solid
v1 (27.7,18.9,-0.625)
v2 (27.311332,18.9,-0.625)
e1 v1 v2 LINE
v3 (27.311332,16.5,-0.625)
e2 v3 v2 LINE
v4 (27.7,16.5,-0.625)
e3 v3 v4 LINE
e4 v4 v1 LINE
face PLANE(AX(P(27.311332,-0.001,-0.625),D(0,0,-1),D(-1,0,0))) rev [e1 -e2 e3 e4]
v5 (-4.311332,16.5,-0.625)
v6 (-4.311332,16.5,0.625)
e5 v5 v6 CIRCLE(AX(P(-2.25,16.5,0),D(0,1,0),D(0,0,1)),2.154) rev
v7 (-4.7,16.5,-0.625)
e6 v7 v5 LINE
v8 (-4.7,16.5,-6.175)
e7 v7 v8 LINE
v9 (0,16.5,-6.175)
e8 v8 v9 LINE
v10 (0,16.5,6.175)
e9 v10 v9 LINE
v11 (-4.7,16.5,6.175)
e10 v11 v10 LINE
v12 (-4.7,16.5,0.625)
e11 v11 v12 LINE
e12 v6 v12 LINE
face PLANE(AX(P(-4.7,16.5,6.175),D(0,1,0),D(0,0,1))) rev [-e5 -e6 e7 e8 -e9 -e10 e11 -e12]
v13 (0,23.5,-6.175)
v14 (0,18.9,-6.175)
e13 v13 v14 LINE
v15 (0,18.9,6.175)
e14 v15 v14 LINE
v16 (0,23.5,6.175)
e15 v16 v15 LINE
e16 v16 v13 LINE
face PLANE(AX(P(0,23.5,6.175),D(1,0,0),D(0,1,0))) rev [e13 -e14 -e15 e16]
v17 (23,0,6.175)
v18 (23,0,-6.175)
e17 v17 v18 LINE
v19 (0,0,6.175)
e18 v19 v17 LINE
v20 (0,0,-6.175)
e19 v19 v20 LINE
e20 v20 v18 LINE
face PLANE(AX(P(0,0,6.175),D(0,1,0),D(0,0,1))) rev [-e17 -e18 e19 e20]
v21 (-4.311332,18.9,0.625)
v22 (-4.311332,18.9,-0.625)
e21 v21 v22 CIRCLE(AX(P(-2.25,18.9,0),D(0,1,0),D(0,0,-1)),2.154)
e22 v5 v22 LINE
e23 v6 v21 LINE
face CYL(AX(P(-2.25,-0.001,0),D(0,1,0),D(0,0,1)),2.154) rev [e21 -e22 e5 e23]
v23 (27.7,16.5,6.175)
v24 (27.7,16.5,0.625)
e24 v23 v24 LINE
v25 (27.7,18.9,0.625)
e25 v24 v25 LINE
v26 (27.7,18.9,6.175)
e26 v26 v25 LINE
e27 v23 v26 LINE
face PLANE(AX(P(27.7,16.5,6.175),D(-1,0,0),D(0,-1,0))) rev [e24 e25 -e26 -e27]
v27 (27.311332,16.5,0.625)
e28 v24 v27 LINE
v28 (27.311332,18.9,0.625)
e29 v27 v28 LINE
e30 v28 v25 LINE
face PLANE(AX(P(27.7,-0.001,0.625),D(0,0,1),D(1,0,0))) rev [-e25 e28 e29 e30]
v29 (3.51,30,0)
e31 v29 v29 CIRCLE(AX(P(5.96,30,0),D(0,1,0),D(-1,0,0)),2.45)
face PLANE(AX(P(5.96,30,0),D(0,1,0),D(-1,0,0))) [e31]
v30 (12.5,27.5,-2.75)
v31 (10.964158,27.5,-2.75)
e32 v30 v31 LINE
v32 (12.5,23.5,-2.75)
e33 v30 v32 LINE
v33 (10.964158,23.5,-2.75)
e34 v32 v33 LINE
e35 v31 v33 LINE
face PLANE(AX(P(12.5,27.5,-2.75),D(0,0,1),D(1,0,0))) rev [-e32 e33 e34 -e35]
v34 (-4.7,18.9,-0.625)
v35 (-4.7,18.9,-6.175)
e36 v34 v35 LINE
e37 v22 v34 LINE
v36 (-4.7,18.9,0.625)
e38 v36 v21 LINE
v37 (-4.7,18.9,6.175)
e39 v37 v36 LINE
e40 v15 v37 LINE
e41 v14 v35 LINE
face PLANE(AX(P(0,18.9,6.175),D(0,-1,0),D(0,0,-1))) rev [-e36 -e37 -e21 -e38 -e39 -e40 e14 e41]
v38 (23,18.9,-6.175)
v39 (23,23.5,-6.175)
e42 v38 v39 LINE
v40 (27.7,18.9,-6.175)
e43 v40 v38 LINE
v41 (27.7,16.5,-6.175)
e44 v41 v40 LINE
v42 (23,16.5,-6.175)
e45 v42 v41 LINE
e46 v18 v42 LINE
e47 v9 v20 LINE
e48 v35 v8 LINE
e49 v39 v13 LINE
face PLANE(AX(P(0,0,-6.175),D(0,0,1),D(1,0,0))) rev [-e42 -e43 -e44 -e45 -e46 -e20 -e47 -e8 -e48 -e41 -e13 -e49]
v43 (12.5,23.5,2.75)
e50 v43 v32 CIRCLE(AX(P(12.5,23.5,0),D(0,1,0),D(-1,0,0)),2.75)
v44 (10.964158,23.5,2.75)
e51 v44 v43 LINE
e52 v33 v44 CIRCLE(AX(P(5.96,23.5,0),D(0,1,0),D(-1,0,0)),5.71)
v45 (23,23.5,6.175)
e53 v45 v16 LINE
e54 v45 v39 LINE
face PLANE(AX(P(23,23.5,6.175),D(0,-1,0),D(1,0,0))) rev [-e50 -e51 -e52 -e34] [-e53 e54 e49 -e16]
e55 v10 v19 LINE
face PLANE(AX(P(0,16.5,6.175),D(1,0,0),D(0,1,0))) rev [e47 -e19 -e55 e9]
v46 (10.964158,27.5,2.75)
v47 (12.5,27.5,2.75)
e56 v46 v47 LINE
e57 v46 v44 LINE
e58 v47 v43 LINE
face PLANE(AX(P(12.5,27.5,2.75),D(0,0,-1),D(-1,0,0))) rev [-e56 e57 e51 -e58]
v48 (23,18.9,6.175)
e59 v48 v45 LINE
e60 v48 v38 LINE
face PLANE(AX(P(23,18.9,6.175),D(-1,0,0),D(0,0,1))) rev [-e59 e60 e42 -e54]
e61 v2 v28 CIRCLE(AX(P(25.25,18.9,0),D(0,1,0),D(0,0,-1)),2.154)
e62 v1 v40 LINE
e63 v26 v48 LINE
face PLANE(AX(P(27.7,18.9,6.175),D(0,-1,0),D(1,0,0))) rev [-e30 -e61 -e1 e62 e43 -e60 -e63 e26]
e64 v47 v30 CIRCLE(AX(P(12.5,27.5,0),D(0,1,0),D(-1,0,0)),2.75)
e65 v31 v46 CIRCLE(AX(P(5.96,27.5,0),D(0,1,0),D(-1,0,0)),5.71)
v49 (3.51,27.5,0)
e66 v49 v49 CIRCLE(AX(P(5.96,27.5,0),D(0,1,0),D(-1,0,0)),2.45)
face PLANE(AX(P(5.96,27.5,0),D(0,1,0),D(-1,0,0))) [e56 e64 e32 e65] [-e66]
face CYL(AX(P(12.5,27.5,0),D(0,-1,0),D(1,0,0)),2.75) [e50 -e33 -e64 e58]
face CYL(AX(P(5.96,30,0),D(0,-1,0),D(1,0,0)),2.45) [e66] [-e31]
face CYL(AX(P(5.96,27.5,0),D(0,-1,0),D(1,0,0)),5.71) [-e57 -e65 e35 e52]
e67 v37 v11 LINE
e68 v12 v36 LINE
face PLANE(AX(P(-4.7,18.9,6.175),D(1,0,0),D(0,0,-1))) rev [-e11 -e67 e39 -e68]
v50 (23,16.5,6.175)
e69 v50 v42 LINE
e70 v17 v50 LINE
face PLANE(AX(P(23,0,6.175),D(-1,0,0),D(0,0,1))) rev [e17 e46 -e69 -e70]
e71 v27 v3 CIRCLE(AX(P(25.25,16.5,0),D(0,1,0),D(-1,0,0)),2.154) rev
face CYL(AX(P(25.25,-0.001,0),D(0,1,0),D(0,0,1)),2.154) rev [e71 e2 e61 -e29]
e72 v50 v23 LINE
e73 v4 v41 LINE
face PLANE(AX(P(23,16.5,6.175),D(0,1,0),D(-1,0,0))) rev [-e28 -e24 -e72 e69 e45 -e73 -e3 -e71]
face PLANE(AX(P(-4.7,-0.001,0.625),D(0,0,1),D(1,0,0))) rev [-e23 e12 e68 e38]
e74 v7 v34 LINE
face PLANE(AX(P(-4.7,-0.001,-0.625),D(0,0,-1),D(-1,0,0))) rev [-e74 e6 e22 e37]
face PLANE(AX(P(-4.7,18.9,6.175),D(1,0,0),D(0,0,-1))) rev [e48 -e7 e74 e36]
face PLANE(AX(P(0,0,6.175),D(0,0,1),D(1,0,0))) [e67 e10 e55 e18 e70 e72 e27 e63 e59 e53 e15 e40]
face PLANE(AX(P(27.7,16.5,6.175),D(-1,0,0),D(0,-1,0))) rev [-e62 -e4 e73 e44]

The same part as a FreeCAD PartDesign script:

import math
import FreeCAD as App
import Part
import Sketcher
Q = App.Units.Quantity

doc = App.newDocument("Part")
body = doc.addObject("PartDesign::Body", "Body")

# Sketch on XY plane
sketch1 = doc.addObject("Sketcher::SketchObject", "Sketch")
body.addObject(sketch1)
sketch1.AttachmentSupport = (doc.XY_Plane, [""])
sketch1.MapMode = "FlatFace"
sketch1.addGeometry(Part.LineSegment(App.Vector(0, 0, 0), App.Vector(23, 0, 0)), False)
sketch1.addGeometry(Part.LineSegment(App.Vector(23, 0, 0), App.Vector(23, 16.5, 0)), False)
sketch1.addGeometry(Part.LineSegment(App.Vector(23, 16.5, 0), App.Vector(27.7, 16.5, 0)), False)
sketch1.addGeometry(Part.LineSegment(App.Vector(27.7, 16.5, 0), App.Vector(27.7, 18.9, 0)), False)
sketch1.addGeometry(Part.LineSegment(App.Vector(27.7, 18.9, 0), App.Vector(23, 18.9, 0)), False)
sketch1.addGeometry(Part.LineSegment(App.Vector(23, 18.9, 0), App.Vector(23, 23.5, 0)), False)
sketch1.addGeometry(Part.LineSegment(App.Vector(23, 23.5, 0), App.Vector(0, 23.5, 0)), False)
sketch1.addGeometry(Part.LineSegment(App.Vector(0, 23.5, 0), App.Vector(0, 18.9, 0)), False)
sketch1.addGeometry(Part.LineSegment(App.Vector(0, 18.9, 0), App.Vector(-4.7, 18.9, 0)), False)
sketch1.addGeometry(Part.LineSegment(App.Vector(-4.7, 18.9, 0), App.Vector(-4.7, 16.5, 0)), False)
sketch1.addGeometry(Part.LineSegment(App.Vector(-4.7, 16.5, 0), App.Vector(0, 16.5, 0)), False)
sketch1.addGeometry(Part.LineSegment(App.Vector(0, 16.5, 0), App.Vector(0, 0, 0)), False)
sketch1.addConstraint(Sketcher.Constraint("Coincident", 0, 2, 1, 1))
sketch1.addConstraint(Sketcher.Constraint("Coincident", 1, 2, 2, 1))
sketch1.addConstraint(Sketcher.Constraint("Coincident", 2, 2, 3, 1))
sketch1.addConstraint(Sketcher.Constraint("Coincident", 3, 2, 4, 1))
sketch1.addConstraint(Sketcher.Constraint("Coincident", 4, 2, 5, 1))
sketch1.addConstraint(Sketcher.Constraint("Coincident", 5, 2, 6, 1))
sketch1.addConstraint(Sketcher.Constraint("Coincident", 6, 2, 7, 1))
sketch1.addConstraint(Sketcher.Constraint("Coincident", 7, 2, 8, 1))
sketch1.addConstraint(Sketcher.Constraint("Coincident", 8, 2, 9, 1))
sketch1.addConstraint(Sketcher.Constraint("Coincident", 9, 2, 10, 1))
sketch1.addConstraint(Sketcher.Constraint("Coincident", 10, 2, 11, 1))
sketch1.addConstraint(Sketcher.Constraint("Coincident", 11, 2, 0, 1))
sketch1.addConstraint(Sketcher.Constraint("Horizontal", 0))
sketch1.addConstraint(Sketcher.Constraint("Vertical", 1))
sketch1.addConstraint(Sketcher.Constraint("Horizontal", 2))
sketch1.addConstraint(Sketcher.Constraint("Vertical", 3))
sketch1.addConstraint(Sketcher.Constraint("Horizontal", 4))
sketch1.addConstraint(Sketcher.Constraint("Vertical", 5))
sketch1.addConstraint(Sketcher.Constraint("Horizontal", 6))
sketch1.addConstraint(Sketcher.Constraint("Vertical", 7))
sketch1.addConstraint(Sketcher.Constraint("Horizontal", 8))
sketch1.addConstraint(Sketcher.Constraint("Vertical", 9))
sketch1.addConstraint(Sketcher.Constraint("Horizontal", 10))
sketch1.addConstraint(Sketcher.Constraint("Vertical", 11))
sketch1.addConstraint(Sketcher.Constraint("Coincident", 11, 2, -1, 1))
sketch1.addConstraint(Sketcher.Constraint("PointOnObject", 6, 2, -2))
sketch1.addConstraint(Sketcher.Constraint("Horizontal", 4, 2, 7, 2))
sketch1.addConstraint(Sketcher.Constraint("Horizontal", 2, 2, 9, 2))
sketch1.addConstraint(Sketcher.Constraint("Vertical", 1, 2, 4, 2))
sketch1.addConstraint(Sketcher.Constraint("Equal", 4, 8))
sketch1.addConstraint(Sketcher.Constraint("DistanceX", 0, 1, 0, 2, Q("23 mm")))
sketch1.addConstraint(Sketcher.Constraint("DistanceX", 2, 1, 2, 2, Q("4.7 mm")))
sketch1.addConstraint(Sketcher.Constraint("DistanceY", 1, 1, 1, 2, Q("16.5 mm")))
sketch1.addConstraint(Sketcher.Constraint("DistanceY", 3, 1, 3, 2, Q("2.4 mm")))
sketch1.addConstraint(Sketcher.Constraint("DistanceY", 5, 1, 5, 2, Q("4.6 mm")))
pad1 = doc.addObject("PartDesign::Pad", "Pad")
body.addObject(pad1)
pad1.Profile = sketch1
pad1.Length = 12.35
pad1.Midplane = True

# Sketch on XZ plane
sketch2 = doc.addObject("Sketcher::SketchObject", "Sketch001")
body.addObject(sketch2)
sketch2.AttachmentSupport = (doc.XZ_Plane, [""])
sketch2.MapMode = "FlatFace"
sketch2.AttachmentOffset = App.Placement(App.Vector(0, 0, -23.5), App.Rotation())
sketch2.addGeometry(Part.LineSegment(App.Vector(12.5, -2.75, 0), App.Vector(10.964158, -2.75, 0)), False)
sketch2.addGeometry(Part.ArcOfCircle(Part.Circle(App.Vector(5.96, 0, 0), App.Vector(0, 0, 1), 5.71), math.radians(28.790686), math.radians(331.209314)), False)
sketch2.addGeometry(Part.LineSegment(App.Vector(10.964158, 2.75, 0), App.Vector(12.5, 2.75, 0)), False)
sketch2.addGeometry(Part.ArcOfCircle(Part.Circle(App.Vector(12.5, 0, 0), App.Vector(0, 0, 1), 2.75), math.radians(-90), math.radians(90)), False)
sketch2.addConstraint(Sketcher.Constraint("Coincident", 0, 2, 1, 2))
sketch2.addConstraint(Sketcher.Constraint("Coincident", 1, 1, 2, 1))
sketch2.addConstraint(Sketcher.Constraint("Tangent", 2, 2, 3, 2))
sketch2.addConstraint(Sketcher.Constraint("Tangent", 3, 1, 0, 1))
sketch2.addConstraint(Sketcher.Constraint("Horizontal", 0))
sketch2.addConstraint(Sketcher.Constraint("Horizontal", 2))
sketch2.addConstraint(Sketcher.Constraint("Symmetric", 0, 2, 1, 1, -1))
sketch2.addConstraint(Sketcher.Constraint("Radius", 1, Q("5.71 mm")))
sketch2.addConstraint(Sketcher.Constraint("Radius", 3, Q("2.75 mm")))
sketch2.addConstraint(Sketcher.Constraint("DistanceX", -1, 1, 3, 3, Q("12.5 mm")))
sketch2.addConstraint(Sketcher.Constraint("DistanceX", -1, 1, 1, 3, Q("5.96 mm")))
pad2 = doc.addObject("PartDesign::Pad", "Pad001")
body.addObject(pad2)
pad2.Profile = sketch2
pad2.Length = 4
pad2.Reversed = True

# Sketch on XZ plane
sketch3 = doc.addObject("Sketcher::SketchObject", "Sketch002")
body.addObject(sketch3)
sketch3.AttachmentSupport = (doc.XZ_Plane, [""])
sketch3.MapMode = "FlatFace"
sketch3.AttachmentOffset = App.Placement(App.Vector(0, 0, -27.5), App.Rotation())
sketch3.addGeometry(Part.Circle(App.Vector(5.96, 0, 0), App.Vector(0, 0, 1), 2.45), False)
sketch3.addConstraint(Sketcher.Constraint("PointOnObject", 0, 3, -1))
sketch3.addConstraint(Sketcher.Constraint("Diameter", 0, Q("4.9 mm")))
sketch3.addConstraint(Sketcher.Constraint("DistanceX", -1, 1, 0, 3, Q("5.96 mm")))
pad3 = doc.addObject("PartDesign::Pad", "Pad002")
body.addObject(pad3)
pad3.Profile = sketch3
pad3.Length = 2.5
pad3.Reversed = True

# Sketch on XZ plane
sketch4 = doc.addObject("Sketcher::SketchObject", "Sketch003")
body.addObject(sketch4)
sketch4.AttachmentSupport = (doc.XZ_Plane, [""])
sketch4.MapMode = "FlatFace"
sketch4.AttachmentOffset = App.Placement(App.Vector(0, 0, -18.9), App.Rotation())
sketch4.addGeometry(Part.LineSegment(App.Vector(-4.311332, -0.625, 0), App.Vector(-4.7, -0.625, 0)), False)
sketch4.addGeometry(Part.LineSegment(App.Vector(-4.7, -0.625, 0), App.Vector(-4.7, 0.625, 0)), False)
sketch4.addGeometry(Part.LineSegment(App.Vector(-4.7, 0.625, 0), App.Vector(-4.311332, 0.625, 0)), False)
sketch4.addGeometry(Part.ArcOfCircle(Part.Circle(App.Vector(-2.25, 0, 0), App.Vector(0, 0, 1), 2.154), math.radians(-163.132594), math.radians(163.132594)), False)
sketch4.addConstraint(Sketcher.Constraint("Coincident", 0, 2, 1, 1))
sketch4.addConstraint(Sketcher.Constraint("Coincident", 1, 2, 2, 1))
sketch4.addConstraint(Sketcher.Constraint("Coincident", 2, 2, 3, 2))
sketch4.addConstraint(Sketcher.Constraint("Coincident", 3, 1, 0, 1))
sketch4.addConstraint(Sketcher.Constraint("Horizontal", 0))
sketch4.addConstraint(Sketcher.Constraint("Vertical", 1))
sketch4.addConstraint(Sketcher.Constraint("Horizontal", 2))
sketch4.addConstraint(Sketcher.Constraint("Symmetric", 2, 2, 3, 1, -1))
sketch4.addConstraint(Sketcher.Constraint("Radius", 3, Q("2.154 mm")))
sketch4.addConstraint(Sketcher.Constraint("DistanceY", 1, 1, 1, 2, Q("1.25 mm")))
sketch4.addConstraint(Sketcher.Constraint("DistanceX", 0, 2, -1, 1, Q("4.7 mm")))
sketch4.addConstraint(Sketcher.Constraint("DistanceX", 3, 3, -1, 1, Q("2.25 mm")))
pocket1 = doc.addObject("PartDesign::Pocket", "Pocket")
body.addObject(pocket1)
pocket1.Profile = sketch4
pocket1.Type = "UpToFirst"
pocket1.Reversed = True

# Sketch on XZ plane
sketch5 = doc.addObject("Sketcher::SketchObject", "Sketch004")
body.addObject(sketch5)
sketch5.AttachmentSupport = (doc.XZ_Plane, [""])
sketch5.MapMode = "FlatFace"
sketch5.AttachmentOffset = App.Placement(App.Vector(0, 0, -18.9), App.Rotation())
sketch5.addGeometry(Part.LineSegment(App.Vector(27.7, -0.625, 0), App.Vector(27.311332, -0.625, 0)), False)
sketch5.addGeometry(Part.ArcOfCircle(Part.Circle(App.Vector(25.25, 0, 0), App.Vector(0, 0, 1), 2.154), math.radians(16.867406), math.radians(343.132594)), False)
sketch5.addGeometry(Part.LineSegment(App.Vector(27.311332, 0.625, 0), App.Vector(27.7, 0.625, 0)), False)
sketch5.addGeometry(Part.LineSegment(App.Vector(27.7, 0.625, 0), App.Vector(27.7, -0.625, 0)), False)
sketch5.addConstraint(Sketcher.Constraint("Coincident", 0, 2, 1, 2))
sketch5.addConstraint(Sketcher.Constraint("Coincident", 1, 1, 2, 1))
sketch5.addConstraint(Sketcher.Constraint("Coincident", 2, 2, 3, 1))
sketch5.addConstraint(Sketcher.Constraint("Coincident", 3, 2, 0, 1))
sketch5.addConstraint(Sketcher.Constraint("Horizontal", 0))
sketch5.addConstraint(Sketcher.Constraint("Horizontal", 2))
sketch5.addConstraint(Sketcher.Constraint("Vertical", 3))
sketch5.addConstraint(Sketcher.Constraint("Symmetric", 0, 2, 1, 1, -1))
sketch5.addConstraint(Sketcher.Constraint("Radius", 1, Q("2.154 mm")))
sketch5.addConstraint(Sketcher.Constraint("DistanceY", 3, 2, 3, 1, Q("1.25 mm")))
sketch5.addConstraint(Sketcher.Constraint("DistanceX", -1, 1, 2, 2, Q("27.7 mm")))
sketch5.addConstraint(Sketcher.Constraint("DistanceX", -1, 1, 1, 3, Q("25.25 mm")))
pocket2 = doc.addObject("PartDesign::Pocket", "Pocket001")
body.addObject(pocket2)
pocket2.Profile = sketch5
pocket2.Type = "UpToFirst"
pocket2.Reversed = True

doc.recompute()
